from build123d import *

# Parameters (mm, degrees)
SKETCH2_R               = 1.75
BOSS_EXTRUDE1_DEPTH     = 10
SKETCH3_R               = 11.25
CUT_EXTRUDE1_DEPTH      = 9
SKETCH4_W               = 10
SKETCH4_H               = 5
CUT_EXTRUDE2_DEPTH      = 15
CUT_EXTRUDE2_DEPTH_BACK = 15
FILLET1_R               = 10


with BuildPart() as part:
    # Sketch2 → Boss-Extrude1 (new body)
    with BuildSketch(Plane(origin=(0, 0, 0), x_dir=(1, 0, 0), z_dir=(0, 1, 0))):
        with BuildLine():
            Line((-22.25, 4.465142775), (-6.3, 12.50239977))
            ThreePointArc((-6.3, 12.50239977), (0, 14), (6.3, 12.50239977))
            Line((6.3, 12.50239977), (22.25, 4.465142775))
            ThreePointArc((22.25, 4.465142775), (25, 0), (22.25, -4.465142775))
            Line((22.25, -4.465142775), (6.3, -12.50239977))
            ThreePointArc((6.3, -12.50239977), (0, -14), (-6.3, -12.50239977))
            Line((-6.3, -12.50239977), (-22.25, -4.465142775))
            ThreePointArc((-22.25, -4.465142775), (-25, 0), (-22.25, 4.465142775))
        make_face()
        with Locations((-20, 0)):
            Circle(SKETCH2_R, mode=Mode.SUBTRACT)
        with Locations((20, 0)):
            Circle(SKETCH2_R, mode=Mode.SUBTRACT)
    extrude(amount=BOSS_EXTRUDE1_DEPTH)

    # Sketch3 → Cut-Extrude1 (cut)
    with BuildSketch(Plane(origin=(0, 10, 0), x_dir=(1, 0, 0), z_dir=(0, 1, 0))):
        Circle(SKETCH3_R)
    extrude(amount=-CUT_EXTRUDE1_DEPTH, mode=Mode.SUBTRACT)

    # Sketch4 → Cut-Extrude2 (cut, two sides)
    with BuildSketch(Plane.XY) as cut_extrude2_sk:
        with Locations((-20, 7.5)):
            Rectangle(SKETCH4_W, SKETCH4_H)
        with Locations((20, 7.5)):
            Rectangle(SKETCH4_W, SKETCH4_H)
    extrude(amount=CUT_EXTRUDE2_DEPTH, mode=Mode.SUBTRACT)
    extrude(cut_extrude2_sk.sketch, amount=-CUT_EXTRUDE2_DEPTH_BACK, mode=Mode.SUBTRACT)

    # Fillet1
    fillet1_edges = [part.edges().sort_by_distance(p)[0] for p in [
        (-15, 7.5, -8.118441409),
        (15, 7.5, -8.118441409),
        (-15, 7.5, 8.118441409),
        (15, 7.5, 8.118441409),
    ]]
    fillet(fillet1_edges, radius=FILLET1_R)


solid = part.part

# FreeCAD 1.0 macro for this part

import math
import FreeCAD as App
import Part
import Sketcher
from FreeCAD import Vector


def edges_at(feature, points):
    """Names of the edges that pass closest to the given points."""
    edges = feature.Shape.Edges
    near = lambda p: min(range(len(edges)), key=lambda i: edges[i].distToShape(Part.Vertex(*p))[0])
    return sorted({f"Edge{near(p) + 1}" for p in points})


def add_polygon(sketch, points):
    """Adds a closed chain of lines whose ends are joined by coincident constraints."""
    first, n = sketch.GeometryCount, len(points)
    for a, b in zip(points, points[1:] + points[:1]):
        sketch.addGeometry(Part.LineSegment(App.Vector(*a, 0), App.Vector(*b, 0)), False)
    for i in range(n):
        sketch.addConstraint(Sketcher.Constraint("Coincident", first + i, 2, first + (i + 1) % n, 1))

doc = App.newDocument("Part")
body = doc.addObject("PartDesign::Body", "Body")

# Sketch on XZ plane
sketch1 = body.newObject("Sketcher::SketchObject", "Sketch")
sketch1.AttachmentSupport = (doc.getObject("XZ_Plane"), [""])
sketch1.MapMode = "FlatFace"
sketch1.addGeometry([
    Part.LineSegment(Vector(-6.3, -12.5024, 0), Vector(-22.25, -4.465143, 0)),  # 0
    Part.ArcOfCircle(Part.Circle(Vector(-20, 0, 0), Vector(0, 0, 1), 5), math.radians(116.743684), math.radians(243.256316)),  # 1
    Part.LineSegment(Vector(-22.25, 4.465143, 0), Vector(-6.3, 12.5024, 0)),  # 2
    Part.ArcOfCircle(Part.Circle(Vector(0, 0, 0), Vector(0, 0, 1), 14), math.radians(63.256316), math.radians(116.743684)),  # 3
    Part.LineSegment(Vector(6.3, 12.5024, 0), Vector(22.25, 4.465143, 0)),  # 4
    Part.ArcOfCircle(Part.Circle(Vector(20, 0, 0), Vector(0, 0, 1), 5), math.radians(-63.256316), math.radians(63.256316)),  # 5
    Part.LineSegment(Vector(22.25, -4.465143, 0), Vector(6.3, -12.5024, 0)),  # 6
    Part.ArcOfCircle(Part.Circle(Vector(0, 0, 0), Vector(0, 0, 1), 14), math.radians(-116.743684), math.radians(-63.256316)),  # 7
    Part.Circle(Vector(20, 0, 0), Vector(0, 0, 1), 1.75),  # 8
    Part.Circle(Vector(-20, 0, 0), Vector(0, 0, 1), 1.75),  # 9
], False)
sketch1.addConstraint([
    Sketcher.Constraint("Tangent", 0, 2, 1, 2),
    Sketcher.Constraint("Tangent", 1, 1, 2, 1),
    Sketcher.Constraint("Tangent", 2, 2, 3, 2),
    Sketcher.Constraint("Tangent", 3, 1, 4, 1),
    Sketcher.Constraint("Tangent", 4, 2, 5, 2),
    Sketcher.Constraint("Tangent", 5, 1, 6, 1),
    Sketcher.Constraint("Tangent", 6, 2, 7, 2),
    Sketcher.Constraint("Tangent", 7, 1, 0, 1),
    Sketcher.Constraint("Coincident", 3, 3, -1, 1),
    Sketcher.Constraint("Coincident", 7, 3, -1, 1),
    Sketcher.Constraint("Coincident", 8, 3, 5, 3),
    Sketcher.Constraint("Coincident", 9, 3, 1, 3),
    Sketcher.Constraint("Equal", 1, 5),
    Sketcher.Constraint("Equal", 3, 7),
    Sketcher.Constraint("Equal", 8, 9),
    Sketcher.Constraint("Symmetric", 1, 3, 5, 3, -1, 1),
    Sketcher.Constraint("PointOnObject", 1, 3, -1),
    Sketcher.Constraint("Radius", 1, 5.0),
    Sketcher.Constraint("Radius", 3, 14.0),
    Sketcher.Constraint("Diameter", 8, 3.5),
    Sketcher.Constraint("DistanceX", 1, 3, -1, 1, 20.0),
])
pad1 = body.newObject("PartDesign::Pad", "Pad")
pad1.Profile = sketch1
pad1.Length = 10
pad1.Reversed = True

# Sketch on XZ plane
sketch2 = body.newObject("Sketcher::SketchObject", "Sketch001")
sketch2.AttachmentSupport = (doc.getObject("XZ_Plane"), [""])
sketch2.MapMode = "FlatFace"
sketch2.AttachmentOffset = App.Placement(Vector(0, 0, -10), App.Rotation())
sketch2.addGeometry(Part.Circle(Vector(0, 0, 0), Vector(0, 0, 1), 11.25), False)
sketch2.addConstraint([
    Sketcher.Constraint("Coincident", 0, 3, -1, 1),
    Sketcher.Constraint("Diameter", 0, 22.5),
])
pocket1 = body.newObject("PartDesign::Pocket", "Pocket")
pocket1.Profile = sketch2
pocket1.Length = 9
pocket1.Reversed = True

# Sketch on XY plane
sketch3 = body.newObject("Sketcher::SketchObject", "Sketch002")
sketch3.AttachmentSupport = (doc.getObject("XY_Plane"), [""])
sketch3.MapMode = "FlatFace"
add_polygon(sketch3, [(-25, 10), (-25, 5), (-15, 5), (-15, 10)])  # lines 0-3
add_polygon(sketch3, [(15, 10), (15, 5), (25, 5), (25, 10)])  # lines 4-7
sketch3.addConstraint([
    Sketcher.Constraint("Vertical", 0),
    Sketcher.Constraint("Horizontal", 1),
    Sketcher.Constraint("Vertical", 2),
    Sketcher.Constraint("Horizontal", 3),
    Sketcher.Constraint("Vertical", 4),
    Sketcher.Constraint("Horizontal", 5),
    Sketcher.Constraint("Vertical", 6),
    Sketcher.Constraint("Horizontal", 7),
    Sketcher.Constraint("Symmetric", 1, 2, 4, 2, -2),
    Sketcher.Constraint("Symmetric", 3, 2, 6, 2, -2),
    Sketcher.Constraint("DistanceX", 1, 1, 1, 2, 10.0),
    Sketcher.Constraint("DistanceY", 0, 2, 0, 1, 5.0),
    Sketcher.Constraint("DistanceX", 0, 2, -1, 1, 25.0),
    Sketcher.Constraint("DistanceY", -1, 1, 0, 2, 5.0),
])
pocket2 = body.newObject("PartDesign::Pocket", "Pocket001")
pocket2.Profile = sketch3
pocket2.Type = "ThroughAll"
pocket2.Midplane = True
doc.recompute()

fillet = body.newObject("PartDesign::Fillet", "Fillet")
fillet.Base = (pocket2, edges_at(pocket2, [
    (-15, 7.5, -8.118),
    (15, 7.5, -8.118),
    (-15, 7.5, 8.118),
    (15, 7.5, 8.118),
]))
fillet.Radius = 10

doc.recompute()
